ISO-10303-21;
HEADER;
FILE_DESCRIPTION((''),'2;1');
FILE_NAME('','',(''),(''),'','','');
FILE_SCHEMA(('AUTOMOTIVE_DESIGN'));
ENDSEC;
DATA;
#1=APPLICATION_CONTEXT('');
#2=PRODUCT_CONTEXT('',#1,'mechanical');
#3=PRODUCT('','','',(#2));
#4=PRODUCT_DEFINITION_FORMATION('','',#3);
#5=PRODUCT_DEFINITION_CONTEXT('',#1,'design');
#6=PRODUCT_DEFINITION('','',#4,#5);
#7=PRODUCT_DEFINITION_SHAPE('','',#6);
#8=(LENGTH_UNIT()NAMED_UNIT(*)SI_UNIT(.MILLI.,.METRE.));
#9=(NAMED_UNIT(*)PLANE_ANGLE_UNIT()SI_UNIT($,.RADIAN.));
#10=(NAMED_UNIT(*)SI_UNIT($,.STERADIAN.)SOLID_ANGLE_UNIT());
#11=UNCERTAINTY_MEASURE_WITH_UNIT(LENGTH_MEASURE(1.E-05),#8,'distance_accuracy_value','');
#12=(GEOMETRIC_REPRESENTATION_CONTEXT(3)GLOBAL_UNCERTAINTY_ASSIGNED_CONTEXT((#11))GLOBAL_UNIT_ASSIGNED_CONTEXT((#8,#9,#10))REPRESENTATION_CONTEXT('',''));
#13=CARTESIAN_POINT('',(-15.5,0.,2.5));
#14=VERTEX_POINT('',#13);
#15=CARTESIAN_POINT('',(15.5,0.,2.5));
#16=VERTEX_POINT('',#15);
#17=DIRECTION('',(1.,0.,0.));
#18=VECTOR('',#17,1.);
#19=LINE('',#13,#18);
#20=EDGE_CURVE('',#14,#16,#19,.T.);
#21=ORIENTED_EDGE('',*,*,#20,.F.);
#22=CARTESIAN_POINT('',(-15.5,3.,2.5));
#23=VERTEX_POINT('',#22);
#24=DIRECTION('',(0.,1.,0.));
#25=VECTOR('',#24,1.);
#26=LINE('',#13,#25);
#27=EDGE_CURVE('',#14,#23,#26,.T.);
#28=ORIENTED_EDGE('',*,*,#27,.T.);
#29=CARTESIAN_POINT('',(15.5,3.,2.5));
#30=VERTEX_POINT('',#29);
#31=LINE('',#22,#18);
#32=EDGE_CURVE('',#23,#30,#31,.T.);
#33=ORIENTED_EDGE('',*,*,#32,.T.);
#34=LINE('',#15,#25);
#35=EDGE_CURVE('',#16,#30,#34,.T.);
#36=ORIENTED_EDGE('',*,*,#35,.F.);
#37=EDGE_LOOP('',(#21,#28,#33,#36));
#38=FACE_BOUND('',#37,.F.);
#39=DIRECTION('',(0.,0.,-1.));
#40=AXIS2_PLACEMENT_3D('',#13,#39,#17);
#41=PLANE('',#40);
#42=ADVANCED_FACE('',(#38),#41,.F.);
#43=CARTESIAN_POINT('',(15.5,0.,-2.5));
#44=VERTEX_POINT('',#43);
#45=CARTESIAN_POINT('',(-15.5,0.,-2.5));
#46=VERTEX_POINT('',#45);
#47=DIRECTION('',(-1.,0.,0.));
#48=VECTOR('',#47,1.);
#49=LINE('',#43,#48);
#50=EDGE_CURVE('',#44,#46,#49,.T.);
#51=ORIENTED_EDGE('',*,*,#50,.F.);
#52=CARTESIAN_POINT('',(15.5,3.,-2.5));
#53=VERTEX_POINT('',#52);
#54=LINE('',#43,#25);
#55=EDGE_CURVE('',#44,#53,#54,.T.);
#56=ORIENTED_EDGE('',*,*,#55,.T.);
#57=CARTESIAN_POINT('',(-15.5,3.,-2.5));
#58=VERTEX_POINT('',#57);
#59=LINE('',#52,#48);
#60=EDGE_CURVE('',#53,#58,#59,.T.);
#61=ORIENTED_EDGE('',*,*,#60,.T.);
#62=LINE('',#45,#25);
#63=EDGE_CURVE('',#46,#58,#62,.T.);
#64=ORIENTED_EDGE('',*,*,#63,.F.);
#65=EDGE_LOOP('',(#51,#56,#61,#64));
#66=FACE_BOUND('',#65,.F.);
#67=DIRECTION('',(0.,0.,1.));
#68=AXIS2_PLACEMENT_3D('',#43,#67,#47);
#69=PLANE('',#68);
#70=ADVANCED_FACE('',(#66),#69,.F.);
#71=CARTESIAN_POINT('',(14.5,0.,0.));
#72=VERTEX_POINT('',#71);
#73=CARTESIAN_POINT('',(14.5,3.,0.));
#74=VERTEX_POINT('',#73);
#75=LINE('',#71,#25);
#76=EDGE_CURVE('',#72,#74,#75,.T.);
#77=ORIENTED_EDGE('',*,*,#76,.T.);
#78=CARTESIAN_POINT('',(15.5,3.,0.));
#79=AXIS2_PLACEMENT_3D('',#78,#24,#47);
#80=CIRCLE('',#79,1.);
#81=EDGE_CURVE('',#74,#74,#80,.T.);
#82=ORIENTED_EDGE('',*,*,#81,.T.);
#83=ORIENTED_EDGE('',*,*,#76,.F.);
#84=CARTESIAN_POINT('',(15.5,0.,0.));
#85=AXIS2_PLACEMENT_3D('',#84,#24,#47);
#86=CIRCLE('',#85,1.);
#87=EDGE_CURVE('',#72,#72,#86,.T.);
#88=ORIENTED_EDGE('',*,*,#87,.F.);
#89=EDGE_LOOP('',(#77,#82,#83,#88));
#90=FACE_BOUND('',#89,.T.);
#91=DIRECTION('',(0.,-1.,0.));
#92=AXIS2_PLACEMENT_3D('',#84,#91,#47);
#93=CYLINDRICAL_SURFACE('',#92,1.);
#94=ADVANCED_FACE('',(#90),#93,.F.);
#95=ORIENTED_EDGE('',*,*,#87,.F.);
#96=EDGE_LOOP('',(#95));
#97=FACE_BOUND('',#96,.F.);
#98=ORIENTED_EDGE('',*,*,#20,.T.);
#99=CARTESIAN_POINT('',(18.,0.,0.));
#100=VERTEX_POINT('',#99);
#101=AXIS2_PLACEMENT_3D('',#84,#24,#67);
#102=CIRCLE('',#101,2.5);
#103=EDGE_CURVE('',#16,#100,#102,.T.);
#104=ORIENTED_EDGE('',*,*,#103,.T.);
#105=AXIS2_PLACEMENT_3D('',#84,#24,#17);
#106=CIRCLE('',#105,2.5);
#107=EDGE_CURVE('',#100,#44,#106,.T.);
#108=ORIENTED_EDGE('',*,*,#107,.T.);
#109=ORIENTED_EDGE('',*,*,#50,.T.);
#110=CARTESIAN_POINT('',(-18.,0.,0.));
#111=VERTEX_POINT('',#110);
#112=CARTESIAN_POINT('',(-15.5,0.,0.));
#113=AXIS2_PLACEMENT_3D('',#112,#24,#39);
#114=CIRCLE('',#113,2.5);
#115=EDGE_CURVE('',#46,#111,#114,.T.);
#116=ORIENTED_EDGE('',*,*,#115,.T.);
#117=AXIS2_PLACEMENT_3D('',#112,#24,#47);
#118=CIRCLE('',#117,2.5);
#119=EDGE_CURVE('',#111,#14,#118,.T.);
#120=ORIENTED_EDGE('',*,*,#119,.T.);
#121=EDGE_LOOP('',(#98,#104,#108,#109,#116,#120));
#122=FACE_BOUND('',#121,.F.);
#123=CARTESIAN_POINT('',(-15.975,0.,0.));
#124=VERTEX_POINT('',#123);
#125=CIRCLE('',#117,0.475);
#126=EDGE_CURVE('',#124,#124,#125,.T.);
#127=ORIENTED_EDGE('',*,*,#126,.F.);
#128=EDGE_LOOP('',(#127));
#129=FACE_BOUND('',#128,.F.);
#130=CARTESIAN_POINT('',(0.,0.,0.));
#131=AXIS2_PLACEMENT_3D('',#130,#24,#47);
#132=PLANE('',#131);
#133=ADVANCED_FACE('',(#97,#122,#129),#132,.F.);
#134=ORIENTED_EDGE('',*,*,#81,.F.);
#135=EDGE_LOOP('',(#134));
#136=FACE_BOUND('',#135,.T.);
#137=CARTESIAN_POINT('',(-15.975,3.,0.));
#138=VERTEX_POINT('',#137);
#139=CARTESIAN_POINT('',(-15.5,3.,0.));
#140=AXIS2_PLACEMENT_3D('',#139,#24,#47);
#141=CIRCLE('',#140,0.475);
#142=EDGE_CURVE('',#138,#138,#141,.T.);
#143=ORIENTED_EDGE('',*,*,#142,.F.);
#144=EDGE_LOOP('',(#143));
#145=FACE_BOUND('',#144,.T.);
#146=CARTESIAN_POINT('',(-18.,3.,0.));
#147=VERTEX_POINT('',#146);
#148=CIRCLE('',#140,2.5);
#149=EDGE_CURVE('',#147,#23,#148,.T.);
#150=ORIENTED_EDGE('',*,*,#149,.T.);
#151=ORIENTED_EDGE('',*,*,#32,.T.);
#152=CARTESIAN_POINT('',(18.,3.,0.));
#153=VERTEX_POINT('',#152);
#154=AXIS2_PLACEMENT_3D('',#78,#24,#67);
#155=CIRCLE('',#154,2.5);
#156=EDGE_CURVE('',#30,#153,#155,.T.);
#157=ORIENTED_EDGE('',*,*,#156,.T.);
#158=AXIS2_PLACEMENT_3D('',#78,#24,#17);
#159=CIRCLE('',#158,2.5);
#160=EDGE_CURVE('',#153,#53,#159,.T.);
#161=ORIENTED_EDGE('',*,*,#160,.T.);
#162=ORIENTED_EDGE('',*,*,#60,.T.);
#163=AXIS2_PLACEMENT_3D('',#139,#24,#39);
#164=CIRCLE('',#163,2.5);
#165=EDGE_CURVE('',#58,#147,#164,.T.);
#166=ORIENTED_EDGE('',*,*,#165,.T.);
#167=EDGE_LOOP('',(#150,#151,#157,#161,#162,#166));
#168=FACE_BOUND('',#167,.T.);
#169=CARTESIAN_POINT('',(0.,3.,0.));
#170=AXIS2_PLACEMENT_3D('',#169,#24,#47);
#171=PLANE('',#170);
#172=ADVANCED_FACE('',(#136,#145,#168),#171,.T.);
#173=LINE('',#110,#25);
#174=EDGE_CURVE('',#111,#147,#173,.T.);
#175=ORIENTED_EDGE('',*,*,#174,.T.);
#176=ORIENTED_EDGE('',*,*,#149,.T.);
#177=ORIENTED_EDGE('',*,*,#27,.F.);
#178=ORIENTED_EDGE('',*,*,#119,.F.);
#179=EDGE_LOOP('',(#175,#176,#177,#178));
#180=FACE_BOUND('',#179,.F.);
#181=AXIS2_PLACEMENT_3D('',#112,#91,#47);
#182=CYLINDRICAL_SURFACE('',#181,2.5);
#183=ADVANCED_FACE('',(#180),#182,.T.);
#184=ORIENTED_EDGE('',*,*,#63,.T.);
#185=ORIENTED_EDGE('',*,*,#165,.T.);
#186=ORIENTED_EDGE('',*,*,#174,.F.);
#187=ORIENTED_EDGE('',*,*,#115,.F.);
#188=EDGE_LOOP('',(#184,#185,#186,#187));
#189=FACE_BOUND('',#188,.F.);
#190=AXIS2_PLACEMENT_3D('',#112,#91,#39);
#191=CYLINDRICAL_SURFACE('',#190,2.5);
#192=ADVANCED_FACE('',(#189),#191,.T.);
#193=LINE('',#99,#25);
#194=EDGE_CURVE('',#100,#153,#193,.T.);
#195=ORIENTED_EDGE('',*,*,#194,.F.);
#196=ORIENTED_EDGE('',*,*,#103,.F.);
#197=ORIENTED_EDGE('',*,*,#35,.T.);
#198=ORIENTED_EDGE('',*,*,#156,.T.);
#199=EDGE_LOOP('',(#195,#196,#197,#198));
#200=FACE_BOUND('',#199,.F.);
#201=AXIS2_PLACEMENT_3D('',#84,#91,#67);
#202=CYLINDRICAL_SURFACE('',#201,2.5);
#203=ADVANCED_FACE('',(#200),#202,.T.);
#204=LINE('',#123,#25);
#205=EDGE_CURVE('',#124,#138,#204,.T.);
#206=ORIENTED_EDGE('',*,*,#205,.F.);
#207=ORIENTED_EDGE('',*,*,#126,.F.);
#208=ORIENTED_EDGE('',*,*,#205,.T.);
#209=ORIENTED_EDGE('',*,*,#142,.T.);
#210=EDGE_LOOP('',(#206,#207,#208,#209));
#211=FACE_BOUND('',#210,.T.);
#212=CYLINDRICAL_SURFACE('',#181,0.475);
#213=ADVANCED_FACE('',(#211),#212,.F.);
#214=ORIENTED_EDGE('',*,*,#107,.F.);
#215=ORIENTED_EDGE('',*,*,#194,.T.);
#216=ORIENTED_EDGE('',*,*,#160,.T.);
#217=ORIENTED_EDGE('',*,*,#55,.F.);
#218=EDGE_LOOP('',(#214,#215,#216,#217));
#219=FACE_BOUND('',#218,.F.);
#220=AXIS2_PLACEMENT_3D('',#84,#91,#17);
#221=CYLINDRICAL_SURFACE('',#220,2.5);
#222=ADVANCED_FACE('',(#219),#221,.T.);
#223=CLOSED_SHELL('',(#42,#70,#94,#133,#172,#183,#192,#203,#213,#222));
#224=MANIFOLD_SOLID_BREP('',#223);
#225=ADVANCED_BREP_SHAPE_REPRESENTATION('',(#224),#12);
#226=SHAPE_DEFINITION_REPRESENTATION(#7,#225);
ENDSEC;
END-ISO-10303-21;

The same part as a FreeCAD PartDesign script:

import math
import FreeCAD as App
import Part
import Sketcher
from FreeCAD import Vector

doc = App.newDocument("Part")
body = doc.addObject("PartDesign::Body", "Body")

# Sketch on XZ plane
sketch1 = doc.addObject("Sketcher::SketchObject", "Sketch")
body.addObject(sketch1)
sketch1.AttachmentSupport = (doc.XZ_Plane, [""])
sketch1.MapMode = "FlatFace"
sketch1.addGeometry([
    Part.ArcOfCircle(Part.Circle(Vector(-15.5, 0, 0), Vector(0, 0, 1), 2.5), math.radians(90), math.radians(270)),  # 0
    Part.LineSegment(Vector(-15.5, 2.5, 0), Vector(15.5, 2.5, 0)),  # 1
    Part.ArcOfCircle(Part.Circle(Vector(15.5, 0, 0), Vector(0, 0, 1), 2.5), math.radians(-90), math.radians(90)),  # 2
    Part.LineSegment(Vector(15.5, -2.5, 0), Vector(-15.5, -2.5, 0)),  # 3
    Part.Circle(Vector(15.5, 0, 0), Vector(0, 0, 1), 1),  # 4
    Part.Circle(Vector(-15.5, 0, 0), Vector(0, 0, 1), 0.475),  # 5
], False)
sketch1.addConstraint([
    Sketcher.Constraint("Tangent", 0, 1, 1, 1),
    Sketcher.Constraint("Tangent", 1, 2, 2, 2),
    Sketcher.Constraint("Tangent", 2, 1, 3, 1),
    Sketcher.Constraint("Tangent", 3, 2, 0, 2),
    Sketcher.Constraint("Horizontal", 1),
    Sketcher.Constraint("Horizontal", 3),
    Sketcher.Constraint("Coincident", 4, 3, 2, 3),
    Sketcher.Constraint("Coincident", 5, 3, 0, 3),
    Sketcher.Constraint("Symmetric", 0, 3, 2, 3, -1, 1),
    Sketcher.Constraint("Diameter", 4, 2.0),
    Sketcher.Constraint("Radius", 0, 2.5),
    Sketcher.Constraint("Diameter", 5, 0.95),
    Sketcher.Constraint("DistanceX", 1, 1, 1, 2, 31.0),
])
pad1 = doc.addObject("PartDesign::Pad", "Pad")
body.addObject(pad1)
pad1.Profile = sketch1
pad1.Length = 3
pad1.Reversed = True

doc.recompute()
